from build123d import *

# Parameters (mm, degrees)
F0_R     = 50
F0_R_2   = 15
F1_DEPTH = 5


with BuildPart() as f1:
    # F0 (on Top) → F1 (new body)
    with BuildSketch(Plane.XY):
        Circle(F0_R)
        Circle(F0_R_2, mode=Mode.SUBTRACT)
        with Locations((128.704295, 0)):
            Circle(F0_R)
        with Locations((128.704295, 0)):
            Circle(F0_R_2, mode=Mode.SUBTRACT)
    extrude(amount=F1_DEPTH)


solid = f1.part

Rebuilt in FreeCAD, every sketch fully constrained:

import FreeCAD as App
import Part
import Sketcher
from FreeCAD import Vector
Q = App.Units.Quantity

doc = App.newDocument("Part")
body = doc.addObject("PartDesign::Body", "Body")
body.AllowCompound = True

sketch1 = body.newObject("Sketcher::SketchObject", "Sketch")
sketch1.AttachmentSupport = (doc.getObject("XY_Plane"), [""])
sketch1.MapMode = "FlatFace"
sketch1.addGeometry(Part.Circle(Vector(0, 0, 0), Vector(0, 0, 1), 50), False)
sketch1.addGeometry(Part.Circle(Vector(0, 0, 0), Vector(0, 0, 1), 15), False)
sketch1.addGeometry(Part.Circle(Vector(129, 0, 0), Vector(0, 0, 1), 50), False)
sketch1.addGeometry(Part.Circle(Vector(129, 0, 0), Vector(0, 0, 1), 15), False)
sketch1.addConstraint(Sketcher.Constraint("Coincident", 0, 3, -1, 1))
sketch1.addConstraint(Sketcher.Constraint("Coincident", 1, 3, -1, 1))
sketch1.addConstraint(Sketcher.Constraint("Coincident", 3, 3, 2, 3))
sketch1.addConstraint(Sketcher.Constraint("Equal", 0, 2))
sketch1.addConstraint(Sketcher.Constraint("Equal", 1, 3))
sketch1.addConstraint(Sketcher.Constraint("PointOnObject", 2, 3, -1))
sketch1.addConstraint(Sketcher.Constraint("Diameter", 0, Q("100 mm")))
sketch1.addConstraint(Sketcher.Constraint("Diameter", 1, Q("30 mm")))
sketch1.addConstraint(Sketcher.Constraint("DistanceX", -1, 1, 2, 3, Q("128.704295 mm")))
pad1 = body.newObject("PartDesign::Pad", "Pad")
pad1.Profile = sketch1
pad1.Length = 5

doc.recompute()
